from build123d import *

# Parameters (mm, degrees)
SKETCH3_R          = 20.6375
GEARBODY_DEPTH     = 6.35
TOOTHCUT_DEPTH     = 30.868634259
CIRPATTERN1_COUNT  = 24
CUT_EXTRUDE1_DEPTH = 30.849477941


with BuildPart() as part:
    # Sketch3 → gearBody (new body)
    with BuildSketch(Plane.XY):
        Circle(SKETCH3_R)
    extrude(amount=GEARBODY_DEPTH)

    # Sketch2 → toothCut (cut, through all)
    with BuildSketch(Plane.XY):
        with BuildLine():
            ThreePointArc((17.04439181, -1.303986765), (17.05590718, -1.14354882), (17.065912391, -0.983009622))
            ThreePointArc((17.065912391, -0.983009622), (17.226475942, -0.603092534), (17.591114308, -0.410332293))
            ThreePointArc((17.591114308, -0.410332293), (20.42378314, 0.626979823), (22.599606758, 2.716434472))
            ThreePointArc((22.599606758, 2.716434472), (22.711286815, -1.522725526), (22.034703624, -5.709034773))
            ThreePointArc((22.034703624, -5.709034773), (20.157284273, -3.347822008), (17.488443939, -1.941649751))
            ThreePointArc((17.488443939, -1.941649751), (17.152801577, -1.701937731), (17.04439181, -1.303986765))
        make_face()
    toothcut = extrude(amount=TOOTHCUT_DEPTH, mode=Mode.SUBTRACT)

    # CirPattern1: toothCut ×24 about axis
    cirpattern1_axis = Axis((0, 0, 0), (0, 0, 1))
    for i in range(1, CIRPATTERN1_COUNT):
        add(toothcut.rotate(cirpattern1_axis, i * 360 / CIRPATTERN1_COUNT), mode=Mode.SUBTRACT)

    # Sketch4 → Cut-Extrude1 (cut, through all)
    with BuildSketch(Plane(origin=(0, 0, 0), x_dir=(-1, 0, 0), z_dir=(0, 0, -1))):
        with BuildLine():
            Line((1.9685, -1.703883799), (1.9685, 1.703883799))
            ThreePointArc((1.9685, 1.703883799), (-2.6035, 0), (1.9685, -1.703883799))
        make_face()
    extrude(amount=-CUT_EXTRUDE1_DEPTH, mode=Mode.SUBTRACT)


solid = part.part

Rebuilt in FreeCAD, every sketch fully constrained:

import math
import FreeCAD as App
import Part
import Sketcher
from FreeCAD import Vector
Q = App.Units.Quantity

doc = App.newDocument("Part")
body = doc.addObject("PartDesign::Body", "Body")

# Sketch on XY plane
sketch1 = body.newObject("Sketcher::SketchObject", "Sketch")
sketch1.AttachmentSupport = (doc.getObject("XY_Plane"), [""])
sketch1.MapMode = "FlatFace"
sketch1.addGeometry(Part.Circle(Vector(0, 0, 0), Vector(0, 0, 1), 21), False)
sketch1.addConstraint([
    Sketcher.Constraint("Coincident", 0, 3, -1, 1),
    Sketcher.Constraint("Diameter", 0, Q("1.625 in")),
])
pad1 = body.newObject("PartDesign::Pad", "Pad")
pad1.Profile = sketch1
pad1.Length = Q("0.25 in")

# Sketch on XY plane
sketch2 = body.newObject("Sketcher::SketchObject", "Sketch001")
sketch2.AttachmentSupport = (doc.getObject("XY_Plane"), [""])
sketch2.MapMode = "FlatFace"
sketch2.addGeometry([
    Part.ArcOfCircle(Part.Circle(Vector(0, 0, 0), Vector(0, 0, 1), 17.09), math.radians(-4.37), math.radians(-3.3)),  # 0
    Part.ArcOfCircle(Part.Circle(Vector(17.66, -1.35, 0), Vector(0, 0, 1), 0.61), math.radians(176), math.radians(254)),  # 1
    Part.ArcOfCircle(Part.Circle(Vector(15.48, -9, 0), Vector(0, 0, 1), 7.34), math.radians(27), math.radians(74)),  # 2
    Part.ArcOfCircle(Part.Circle(Vector(0, 0, 0), Vector(0, 0, 1), 22.76), math.radians(-15), math.radians(7)),  # 3
    Part.ArcOfCircle(Part.Circle(Vector(16.54, 6.85, 0), Vector(0, 0, 1), 7.34), math.radians(-82), math.radians(-34)),  # 4
    Part.ArcOfCircle(Part.Circle(Vector(17.68, -1.02, 0), Vector(0, 0, 1), 0.61), math.radians(98), math.radians(177)),  # 5
], False)
sketch2.addConstraint([
    Sketcher.Constraint("Tangent", 0, 1, 1, 1),
    Sketcher.Constraint("Tangent", 1, 2, 2, 2),
    Sketcher.Constraint("Coincident", 2, 1, 3, 1),
    Sketcher.Constraint("Coincident", 3, 2, 4, 2),
    Sketcher.Constraint("Tangent", 4, 1, 5, 1),
    Sketcher.Constraint("Tangent", 5, 2, 0, 2),
    Sketcher.Constraint("Coincident", 3, 3, -1, 1),
    Sketcher.Constraint("Equal", 2, 4),
    Sketcher.Constraint("Equal", 1, 5),
    Sketcher.Constraint("PointOnObject", 0, 3, -1),
    Sketcher.Constraint("Radius", 0, 17.094212),
    Sketcher.Constraint("Radius", 1, 0.614362),
    Sketcher.Constraint("Radius", 2, 7.336707),
    Sketcher.Constraint("Radius", 3, 22.762277),
    Sketcher.Constraint("DistanceX", -1, 1, 4, 3, 16.538501),
    Sketcher.Constraint("DistanceY", 2, 3, 1, 2, 7.055299),
    Sketcher.Constraint("DistanceX", 5, 2, 4, 1, 0.525202),
    Sketcher.Constraint("DistanceY", 1, 3, -1, 1, 1.350852),
    Sketcher.Constraint("DistanceY", -1, 1, 4, 3, 6.850471),
])
pocket1 = body.newObject("PartDesign::Pocket", "Pocket")
pocket1.Profile = sketch2
pocket1.Type = "ThroughAll"
pocket1.Reversed = True
doc.recompute()

polarpattern = body.newObject("PartDesign::PolarPattern", "PolarPattern")
polarpattern.Originals = [pocket1]
polarpattern.Axis = (doc.getObject("Z_Axis"), [""])
polarpattern.Angle = 360
polarpattern.Occurrences = 24
body.Tip = polarpattern

# Sketch on XY plane
sketch3 = body.newObject("Sketcher::SketchObject", "Sketch002")
sketch3.AttachmentSupport = (doc.getObject("XY_Plane"), [""])
sketch3.MapMode = "FlatFace"
sketch3.addGeometry([
    Part.LineSegment(Vector(-2, -1.7, 0), Vector(-2, 1.7, 0)),
    Part.ArcOfCircle(Part.Circle(Vector(0, 0, 0), Vector(0, 0, 1), 2.6), math.radians(-139), math.radians(139)),
], False)
sketch3.addConstraint([
    Sketcher.Constraint("Coincident", 0, 1, 1, 1),
    Sketcher.Constraint("Coincident", 1, 2, 0, 2),
    Sketcher.Constraint("Vertical", 0),
    Sketcher.Constraint("Coincident", 1, 3, -1, 1),
    Sketcher.Constraint("Radius", 1, Q("0.1025 in")),
    Sketcher.Constraint("DistanceX", 0, 1, -1, 1, Q("0.0775 in")),
])
pocket2 = body.newObject("PartDesign::Pocket", "Pocket001")
pocket2.Profile = sketch3
pocket2.Type = "ThroughAll"
pocket2.Reversed = True

doc.recompute()
